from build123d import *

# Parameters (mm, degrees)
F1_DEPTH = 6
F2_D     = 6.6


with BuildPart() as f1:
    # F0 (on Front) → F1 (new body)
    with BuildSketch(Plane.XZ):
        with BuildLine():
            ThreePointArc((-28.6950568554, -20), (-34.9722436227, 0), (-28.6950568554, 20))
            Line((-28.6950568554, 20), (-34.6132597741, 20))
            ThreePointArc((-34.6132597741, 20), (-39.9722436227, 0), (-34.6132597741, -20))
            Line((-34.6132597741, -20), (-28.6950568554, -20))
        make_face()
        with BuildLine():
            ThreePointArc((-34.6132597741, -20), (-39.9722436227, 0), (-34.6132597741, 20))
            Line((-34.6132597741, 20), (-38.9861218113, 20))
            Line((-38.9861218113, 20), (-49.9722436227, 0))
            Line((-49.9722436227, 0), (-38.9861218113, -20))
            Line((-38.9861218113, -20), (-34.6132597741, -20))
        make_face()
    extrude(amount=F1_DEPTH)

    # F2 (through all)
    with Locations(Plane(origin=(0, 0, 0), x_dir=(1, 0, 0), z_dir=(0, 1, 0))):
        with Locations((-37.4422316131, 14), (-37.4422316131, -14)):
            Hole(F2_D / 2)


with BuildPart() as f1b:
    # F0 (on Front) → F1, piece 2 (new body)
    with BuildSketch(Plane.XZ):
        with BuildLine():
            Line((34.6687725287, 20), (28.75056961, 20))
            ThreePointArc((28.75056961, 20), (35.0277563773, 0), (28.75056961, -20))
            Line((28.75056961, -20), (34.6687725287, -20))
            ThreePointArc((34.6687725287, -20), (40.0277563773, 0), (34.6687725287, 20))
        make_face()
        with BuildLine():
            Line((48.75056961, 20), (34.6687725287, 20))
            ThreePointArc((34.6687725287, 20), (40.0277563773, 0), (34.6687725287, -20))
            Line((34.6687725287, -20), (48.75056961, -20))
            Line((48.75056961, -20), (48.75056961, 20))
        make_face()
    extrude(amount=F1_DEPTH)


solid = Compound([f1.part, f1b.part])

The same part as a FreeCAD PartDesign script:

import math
import FreeCAD as App
import Part
import Sketcher
Q = App.Units.Quantity

doc = App.newDocument("Part")
body = doc.addObject("PartDesign::Body", "Body")

sketch1 = body.newObject("Sketcher::SketchObject", "Sketch")
sketch1.AttachmentSupport = (doc.getObject("XZ_Plane"), [""])
sketch1.MapMode = "FlatFace"
sketch1.addGeometry([
    Part.ArcOfCircle(Part.Circle(App.Vector(0, 0, 0), App.Vector(0, 0, 1), 35), math.radians(145), math.radians(215)),
    Part.LineSegment(App.Vector(-29, 20, 0), App.Vector(-39, 20, 0)),
    Part.LineSegment(App.Vector(-39, 20, 0), App.Vector(-50, 0, 0)),
    Part.LineSegment(App.Vector(-50, 0, 0), App.Vector(-39, -20, 0)),
    Part.LineSegment(App.Vector(-39, -20, 0), App.Vector(-29, -20, 0)),
], False)
sketch1.addConstraint([
    Sketcher.Constraint("Coincident", 0, 1, 1, 1),
    Sketcher.Constraint("Coincident", 1, 2, 2, 1),
    Sketcher.Constraint("Coincident", 2, 2, 3, 1),
    Sketcher.Constraint("Coincident", 3, 2, 4, 1),
    Sketcher.Constraint("Coincident", 4, 2, 0, 2),
    Sketcher.Constraint("Horizontal", 1),
    Sketcher.Constraint("Horizontal", 4),
    Sketcher.Constraint("Symmetric", 1, 2, 3, 2, -1),
    Sketcher.Constraint("PointOnObject", 0, 3, -1),
    Sketcher.Constraint("PointOnObject", 2, 2, -1),
    Sketcher.Constraint("Radius", 0, Q("35 mm")),
    Sketcher.Constraint("DistanceY", -1, 1, 0, 1, Q("20 mm")),
    Sketcher.Constraint("DistanceX", 2, 2, 0, 3, Q("50 mm")),
    Sketcher.Constraint("Distance", 2, Q("22.81874 mm")),
    Sketcher.Constraint("DistanceX", 1, 2, -1, 1, Q("38.986122 mm")),
])
pad1 = body.newObject("PartDesign::Pad", "Pad")
pad1.Profile = sketch1
pad1.Length = 6

sketch2 = body.newObject("Sketcher::SketchObject", "Sketch001")
sketch2.AttachmentSupport = (doc.getObject("XZ_Plane"), [""])
sketch2.MapMode = "FlatFace"
sketch2.addGeometry([
    Part.Circle(App.Vector(-37.4, -14, 0), App.Vector(0, 0, 1), 3.3),
    Part.Circle(App.Vector(-37.4, 14, 0), App.Vector(0, 0, 1), 3.3),
], False)
sketch2.addConstraint([
    Sketcher.Constraint("Equal", 0, 1),
    Sketcher.Constraint("Symmetric", 0, 3, 1, 3, -1),
    Sketcher.Constraint("Diameter", 0, Q("6.6 mm")),
    Sketcher.Constraint("DistanceY", 0, 3, -1, 1, Q("14 mm")),
    Sketcher.Constraint("DistanceX", 0, 3, -1, 1, Q("37.442232 mm")),
])
doc.recompute()
hole = body.newObject("PartDesign::Hole", "Hole")
hole.Profile = sketch2
hole.ThreadType = "None"
hole.Diameter = 6.6
hole.DepthType = "ThroughAll"
hole.Reversed = True
body2 = doc.addObject("PartDesign::Body", "Body001")

sketch3 = body2.newObject("Sketcher::SketchObject", "Sketch002")
sketch3.AttachmentSupport = (doc.getObject("XZ_Plane001"), [""])
sketch3.MapMode = "FlatFace"
sketch3.addGeometry([
    Part.ArcOfCircle(Part.Circle(App.Vector(0, 0, 0), App.Vector(0, 0, 1), 35), math.radians(-35), math.radians(35)),
    Part.LineSegment(App.Vector(29, -20, 0), App.Vector(49, -20, 0)),
    Part.LineSegment(App.Vector(49, -20, 0), App.Vector(49, 20, 0)),
    Part.LineSegment(App.Vector(49, 20, 0), App.Vector(29, 20, 0)),
], False)
sketch3.addConstraint([
    Sketcher.Constraint("Coincident", 0, 1, 1, 1),
    Sketcher.Constraint("Coincident", 1, 2, 2, 1),
    Sketcher.Constraint("Coincident", 2, 2, 3, 1),
    Sketcher.Constraint("Coincident", 3, 2, 0, 2),
    Sketcher.Constraint("Horizontal", 1),
    Sketcher.Constraint("Vertical", 2),
    Sketcher.Constraint("Horizontal", 3),
    Sketcher.Constraint("Symmetric", 0, 1, 3, 2, -1),
    Sketcher.Constraint("Radius", 0, Q("35 mm")),
    Sketcher.Constraint("DistanceX", 1, 1, 1, 2, Q("20 mm")),
    Sketcher.Constraint("DistanceY", 2, 1, 2, 2, Q("40 mm")),
    Sketcher.Constraint("DistanceX", -1, 1, 0, 1, Q("28.75057 mm")),
])
pad2 = body2.newObject("PartDesign::Pad", "Pad001")
pad2.Profile = sketch3
pad2.Length = 6

doc.recompute()
